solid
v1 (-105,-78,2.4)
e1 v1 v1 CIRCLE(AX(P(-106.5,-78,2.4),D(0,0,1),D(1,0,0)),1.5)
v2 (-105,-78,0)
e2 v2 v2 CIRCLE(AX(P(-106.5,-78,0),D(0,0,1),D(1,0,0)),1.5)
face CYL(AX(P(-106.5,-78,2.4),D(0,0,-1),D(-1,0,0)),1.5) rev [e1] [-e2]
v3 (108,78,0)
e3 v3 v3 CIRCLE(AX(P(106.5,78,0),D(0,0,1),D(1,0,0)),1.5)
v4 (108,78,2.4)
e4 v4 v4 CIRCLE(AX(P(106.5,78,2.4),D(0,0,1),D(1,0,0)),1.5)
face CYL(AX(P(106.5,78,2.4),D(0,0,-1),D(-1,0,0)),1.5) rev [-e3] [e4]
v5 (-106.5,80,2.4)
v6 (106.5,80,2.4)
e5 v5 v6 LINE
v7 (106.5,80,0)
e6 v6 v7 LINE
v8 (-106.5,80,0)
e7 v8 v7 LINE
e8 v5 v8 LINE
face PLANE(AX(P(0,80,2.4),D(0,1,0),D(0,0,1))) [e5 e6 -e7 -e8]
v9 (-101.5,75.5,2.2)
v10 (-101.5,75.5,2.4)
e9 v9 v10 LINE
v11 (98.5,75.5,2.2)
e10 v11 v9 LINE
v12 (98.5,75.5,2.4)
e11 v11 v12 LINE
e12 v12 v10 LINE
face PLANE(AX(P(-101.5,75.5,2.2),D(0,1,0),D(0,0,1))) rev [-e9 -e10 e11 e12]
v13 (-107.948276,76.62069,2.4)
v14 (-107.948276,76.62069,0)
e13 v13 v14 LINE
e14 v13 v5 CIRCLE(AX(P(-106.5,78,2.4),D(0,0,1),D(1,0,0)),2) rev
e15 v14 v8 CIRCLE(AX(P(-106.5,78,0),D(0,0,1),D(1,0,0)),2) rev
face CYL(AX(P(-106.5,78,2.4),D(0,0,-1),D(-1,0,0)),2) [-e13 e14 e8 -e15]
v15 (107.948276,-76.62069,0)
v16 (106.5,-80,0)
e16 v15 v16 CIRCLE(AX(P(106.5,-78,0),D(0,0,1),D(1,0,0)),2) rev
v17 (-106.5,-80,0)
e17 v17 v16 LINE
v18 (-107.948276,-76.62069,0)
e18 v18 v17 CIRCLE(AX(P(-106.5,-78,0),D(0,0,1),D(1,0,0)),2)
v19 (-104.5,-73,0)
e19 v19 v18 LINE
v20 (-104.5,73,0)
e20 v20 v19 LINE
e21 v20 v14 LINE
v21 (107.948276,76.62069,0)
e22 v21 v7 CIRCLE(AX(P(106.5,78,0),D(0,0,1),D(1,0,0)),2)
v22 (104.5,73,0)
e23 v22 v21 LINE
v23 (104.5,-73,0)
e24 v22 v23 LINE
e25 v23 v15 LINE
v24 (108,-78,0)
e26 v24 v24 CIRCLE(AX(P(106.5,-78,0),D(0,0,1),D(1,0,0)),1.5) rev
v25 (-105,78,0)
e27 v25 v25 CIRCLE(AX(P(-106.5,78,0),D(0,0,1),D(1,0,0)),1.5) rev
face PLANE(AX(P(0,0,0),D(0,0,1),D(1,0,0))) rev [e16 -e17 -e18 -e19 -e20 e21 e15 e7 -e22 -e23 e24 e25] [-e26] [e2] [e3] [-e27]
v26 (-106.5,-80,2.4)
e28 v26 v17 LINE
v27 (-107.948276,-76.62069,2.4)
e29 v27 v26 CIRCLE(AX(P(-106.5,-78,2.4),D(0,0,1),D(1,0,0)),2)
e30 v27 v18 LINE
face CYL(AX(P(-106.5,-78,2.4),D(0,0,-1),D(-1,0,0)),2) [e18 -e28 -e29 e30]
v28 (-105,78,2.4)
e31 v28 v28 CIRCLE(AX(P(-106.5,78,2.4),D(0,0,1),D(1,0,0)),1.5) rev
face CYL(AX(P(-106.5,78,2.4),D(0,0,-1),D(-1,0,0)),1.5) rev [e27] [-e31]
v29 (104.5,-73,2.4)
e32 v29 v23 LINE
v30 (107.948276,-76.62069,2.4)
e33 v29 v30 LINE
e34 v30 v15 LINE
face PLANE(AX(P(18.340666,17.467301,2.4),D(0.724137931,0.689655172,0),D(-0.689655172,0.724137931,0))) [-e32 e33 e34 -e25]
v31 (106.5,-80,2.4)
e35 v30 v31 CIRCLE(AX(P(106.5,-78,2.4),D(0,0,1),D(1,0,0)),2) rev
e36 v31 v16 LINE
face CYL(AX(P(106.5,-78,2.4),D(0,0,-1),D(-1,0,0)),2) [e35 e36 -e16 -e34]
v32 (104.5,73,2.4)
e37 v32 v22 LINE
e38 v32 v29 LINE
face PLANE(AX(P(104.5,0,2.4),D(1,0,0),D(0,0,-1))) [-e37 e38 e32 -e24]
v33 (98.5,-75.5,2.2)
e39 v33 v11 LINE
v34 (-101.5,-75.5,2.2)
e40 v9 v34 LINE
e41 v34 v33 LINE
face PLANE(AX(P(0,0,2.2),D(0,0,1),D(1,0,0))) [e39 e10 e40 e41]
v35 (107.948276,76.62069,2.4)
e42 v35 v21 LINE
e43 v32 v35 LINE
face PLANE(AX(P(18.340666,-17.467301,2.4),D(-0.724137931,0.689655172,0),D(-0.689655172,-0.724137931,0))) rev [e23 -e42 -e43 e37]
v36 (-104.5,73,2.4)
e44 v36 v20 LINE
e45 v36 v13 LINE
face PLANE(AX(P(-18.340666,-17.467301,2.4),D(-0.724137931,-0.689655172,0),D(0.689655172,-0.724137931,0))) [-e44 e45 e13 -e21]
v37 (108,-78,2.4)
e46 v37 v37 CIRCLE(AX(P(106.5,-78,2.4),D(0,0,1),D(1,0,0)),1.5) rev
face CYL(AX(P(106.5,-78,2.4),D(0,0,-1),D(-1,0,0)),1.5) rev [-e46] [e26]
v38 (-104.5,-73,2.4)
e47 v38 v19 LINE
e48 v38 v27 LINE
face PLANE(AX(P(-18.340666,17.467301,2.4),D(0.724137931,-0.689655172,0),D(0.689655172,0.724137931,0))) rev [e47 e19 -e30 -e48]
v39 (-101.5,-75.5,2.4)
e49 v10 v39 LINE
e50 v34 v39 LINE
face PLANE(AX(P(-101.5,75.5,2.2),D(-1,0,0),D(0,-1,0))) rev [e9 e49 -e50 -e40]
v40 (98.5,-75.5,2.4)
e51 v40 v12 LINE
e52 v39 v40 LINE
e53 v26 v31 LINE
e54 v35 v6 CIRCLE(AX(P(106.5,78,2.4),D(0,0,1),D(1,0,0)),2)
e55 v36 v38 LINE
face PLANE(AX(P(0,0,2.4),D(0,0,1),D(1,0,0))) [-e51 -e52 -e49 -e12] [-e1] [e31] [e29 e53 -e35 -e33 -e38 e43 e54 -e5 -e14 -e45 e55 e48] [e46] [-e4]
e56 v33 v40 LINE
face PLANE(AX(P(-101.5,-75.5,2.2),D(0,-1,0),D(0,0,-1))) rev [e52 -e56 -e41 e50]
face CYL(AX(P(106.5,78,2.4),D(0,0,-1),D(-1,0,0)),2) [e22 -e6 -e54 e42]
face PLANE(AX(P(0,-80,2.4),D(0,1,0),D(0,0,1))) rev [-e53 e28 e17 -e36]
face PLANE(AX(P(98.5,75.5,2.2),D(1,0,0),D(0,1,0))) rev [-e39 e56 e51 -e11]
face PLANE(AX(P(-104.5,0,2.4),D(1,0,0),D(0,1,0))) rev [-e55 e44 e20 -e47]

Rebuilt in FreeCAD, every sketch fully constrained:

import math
import FreeCAD as App
import Part
import Sketcher
from FreeCAD import Vector
Q = App.Units.Quantity


def add_polygon(sketch, points):
    """Adds a closed chain of lines whose ends are joined by coincident constraints."""
    first, n = sketch.GeometryCount, len(points)
    for a, b in zip(points, points[1:] + points[:1]):
        sketch.addGeometry(Part.LineSegment(App.Vector(*a, 0), App.Vector(*b, 0)), False)
    for i in range(n):
        sketch.addConstraint(Sketcher.Constraint("Coincident", first + i, 2, first + (i + 1) % n, 1))

doc = App.newDocument("Part")
body = doc.addObject("PartDesign::Body", "Body")

sketch1 = doc.addObject("Sketcher::SketchObject", "Sketch")
body.addObject(sketch1)
sketch1.AttachmentSupport = (doc.XY_Plane, [""])
sketch1.MapMode = "FlatFace"
sketch1.addGeometry([
    Part.LineSegment(Vector(-104.5, 73, 0), Vector(-104.5, -73, 0)),
    Part.LineSegment(Vector(-104.5, -73, 0), Vector(-107.948276, -76.62069, 0)),
    Part.ArcOfCircle(Part.Circle(Vector(-106.5, -78, 0), Vector(0, 0, 1), 2), math.radians(136.397181), math.radians(270)),
    Part.LineSegment(Vector(-106.5, -80, 0), Vector(106.5, -80, 0)),
    Part.ArcOfCircle(Part.Circle(Vector(106.5, -78, 0), Vector(0, 0, 1), 2), math.radians(-90), math.radians(43.602819)),
    Part.LineSegment(Vector(107.948276, -76.62069, 0), Vector(104.5, -73, 0)),
    Part.LineSegment(Vector(104.5, -73, 0), Vector(104.5, 73, 0)),
    Part.LineSegment(Vector(104.5, 73, 0), Vector(107.948276, 76.62069, 0)),
    Part.ArcOfCircle(Part.Circle(Vector(106.5, 78, 0), Vector(0, 0, 1), 2), math.radians(-43.602819), math.radians(90)),
    Part.LineSegment(Vector(106.5, 80, 0), Vector(-106.5, 80, 0)),
    Part.ArcOfCircle(Part.Circle(Vector(-106.5, 78, 0), Vector(0, 0, 1), 2), math.radians(90), math.radians(223.602819)),
    Part.LineSegment(Vector(-107.948276, 76.62069, 0), Vector(-104.5, 73, 0)),
    Part.Circle(Vector(-106.5, -78, 0), Vector(0, 0, 1), 1.5),
    Part.Circle(Vector(106.5, -78, 0), Vector(0, 0, 1), 1.5),
    Part.Circle(Vector(-106.5, 78, 0), Vector(0, 0, 1), 1.5),
    Part.Circle(Vector(106.5, 78, 0), Vector(0, 0, 1), 1.5),
], False)
sketch1.addConstraint([
    Sketcher.Constraint("Coincident", 0, 2, 1, 1),
    Sketcher.Constraint("Tangent", 1, 2, 2, 1),
    Sketcher.Constraint("Tangent", 2, 2, 3, 1),
    Sketcher.Constraint("Tangent", 3, 2, 4, 1),
    Sketcher.Constraint("Tangent", 4, 2, 5, 1),
    Sketcher.Constraint("Coincident", 5, 2, 6, 1),
    Sketcher.Constraint("Coincident", 6, 2, 7, 1),
    Sketcher.Constraint("Tangent", 7, 2, 8, 1),
    Sketcher.Constraint("Tangent", 8, 2, 9, 1),
    Sketcher.Constraint("Tangent", 9, 2, 10, 1),
    Sketcher.Constraint("Tangent", 10, 2, 11, 1),
    Sketcher.Constraint("Coincident", 11, 2, 0, 1),
    Sketcher.Constraint("Vertical", 0),
    Sketcher.Constraint("Horizontal", 3),
    Sketcher.Constraint("Vertical", 6),
    Sketcher.Constraint("Horizontal", 9),
    Sketcher.Constraint("Coincident", 12, 3, 2, 3),
    Sketcher.Constraint("Coincident", 13, 3, 4, 3),
    Sketcher.Constraint("Coincident", 14, 3, 10, 3),
    Sketcher.Constraint("Coincident", 15, 3, 8, 3),
    Sketcher.Constraint("Equal", 2, 4),
    Sketcher.Constraint("Equal", 4, 8),
    Sketcher.Constraint("Equal", 8, 10),
    Sketcher.Constraint("Equal", 12, 13),
    Sketcher.Constraint("Equal", 13, 14),
    Sketcher.Constraint("Equal", 14, 15),
    Sketcher.Constraint("Symmetric", 2, 3, 8, 3, -1, 1),
    Sketcher.Constraint("Symmetric", 0, 2, 6, 2, -1, 1),
    Sketcher.Constraint("Symmetric", 4, 2, 10, 2, -1, 1),
    Sketcher.Constraint("Symmetric", 1, 2, 4, 2, -2),
    Sketcher.Constraint("Diameter", 12, Q("3 mm")),
    Sketcher.Constraint("Radius", 2, Q("2 mm")),
    Sketcher.Constraint("DistanceX", 3, 1, 3, 2, Q("213 mm")),
    Sketcher.Constraint("DistanceY", 0, 2, 0, 1, Q("146 mm")),
    Sketcher.Constraint("Distance", 1, Q("5 mm")),
    Sketcher.Constraint("DistanceY", 2, 3, -1, 1, Q("78 mm")),
])
pad1 = doc.addObject("PartDesign::Pad", "Pad")
body.addObject(pad1)
pad1.Profile = sketch1
pad1.Length = 2.4

sketch2 = doc.addObject("Sketcher::SketchObject", "Sketch001")
body.addObject(sketch2)
sketch2.AttachmentSupport = (doc.XY_Plane, [""])
sketch2.MapMode = "FlatFace"
sketch2.AttachmentOffset = App.Placement(Vector(0, 0, 2.4), App.Rotation())
add_polygon(sketch2, [(-101.5, 75.5), (-101.5, -75.5), (98.5, -75.5), (98.5, 75.5)])
sketch2.addConstraint([
    Sketcher.Constraint("Vertical", 0),
    Sketcher.Constraint("Horizontal", 1),
    Sketcher.Constraint("Vertical", 2),
    Sketcher.Constraint("Horizontal", 3),
    Sketcher.Constraint("DistanceX", 1, 1, 1, 2, Q("200 mm")),
    Sketcher.Constraint("DistanceY", 0, 2, 0, 1, Q("151 mm")),
    Sketcher.Constraint("DistanceX", 0, 2, -1, 1, Q("101.5 mm")),
    Sketcher.Constraint("DistanceY", 0, 2, -1, 1, Q("75.5 mm")),
])
pocket1 = doc.addObject("PartDesign::Pocket", "Pocket")
body.addObject(pocket1)
pocket1.Profile = sketch2
pocket1.Length = 0.2

doc.recompute()
